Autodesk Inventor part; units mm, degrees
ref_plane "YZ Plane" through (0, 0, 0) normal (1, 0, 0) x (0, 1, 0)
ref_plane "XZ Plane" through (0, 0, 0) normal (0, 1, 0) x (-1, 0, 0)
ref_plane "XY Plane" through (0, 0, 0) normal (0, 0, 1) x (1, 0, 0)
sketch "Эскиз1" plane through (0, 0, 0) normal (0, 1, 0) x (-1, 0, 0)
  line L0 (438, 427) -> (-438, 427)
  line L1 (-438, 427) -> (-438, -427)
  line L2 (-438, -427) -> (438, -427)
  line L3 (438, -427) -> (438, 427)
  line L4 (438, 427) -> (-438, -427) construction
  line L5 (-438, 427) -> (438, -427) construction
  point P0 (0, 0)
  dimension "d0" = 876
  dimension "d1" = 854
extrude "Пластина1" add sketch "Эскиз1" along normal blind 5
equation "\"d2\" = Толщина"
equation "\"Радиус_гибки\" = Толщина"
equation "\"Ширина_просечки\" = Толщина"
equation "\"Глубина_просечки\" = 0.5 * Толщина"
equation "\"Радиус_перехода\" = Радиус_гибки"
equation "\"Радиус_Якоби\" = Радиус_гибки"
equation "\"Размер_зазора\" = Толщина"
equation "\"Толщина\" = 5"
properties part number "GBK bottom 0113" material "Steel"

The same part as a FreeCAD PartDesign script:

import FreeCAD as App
import Part
import Sketcher
from FreeCAD import Vector
Q = App.Units.Quantity


def add_polygon(sketch, points):
    """Adds a closed chain of lines whose ends are joined by coincident constraints."""
    first, n = sketch.GeometryCount, len(points)
    for a, b in zip(points, points[1:] + points[:1]):
        sketch.addGeometry(Part.LineSegment(App.Vector(*a, 0), App.Vector(*b, 0)), False)
    for i in range(n):
        sketch.addConstraint(Sketcher.Constraint("Coincident", first + i, 2, first + (i + 1) % n, 1))

doc = App.newDocument("Part")
body = doc.addObject("PartDesign::Body", "Body")

# Sketch on XZ plane
sketch1 = body.newObject("Sketcher::SketchObject", "Sketch")
sketch1.AttachmentSupport = (doc.getObject("XZ_Plane"), [""])
sketch1.MapMode = "FlatFace"
add_polygon(sketch1, [(-438, -427), (-438, 427), (438, 427), (438, -427)])  # lines 0-3
sketch1.addConstraint([
    Sketcher.Constraint("Vertical", 0),
    Sketcher.Constraint("Horizontal", 1),
    Sketcher.Constraint("Vertical", 2),
    Sketcher.Constraint("Horizontal", 3),
    Sketcher.Constraint("Symmetric", 0, 2, 2, 2, -1, 1),
    Sketcher.Constraint("DistanceX", 1, 1, 1, 2, Q("876 mm")),
    Sketcher.Constraint("DistanceY", 0, 1, 0, 2, Q("854 mm")),
])
pad1 = body.newObject("PartDesign::Pad", "Pad")
pad1.Profile = sketch1
pad1.Length = 5
pad1.Reversed = True

doc.recompute()
